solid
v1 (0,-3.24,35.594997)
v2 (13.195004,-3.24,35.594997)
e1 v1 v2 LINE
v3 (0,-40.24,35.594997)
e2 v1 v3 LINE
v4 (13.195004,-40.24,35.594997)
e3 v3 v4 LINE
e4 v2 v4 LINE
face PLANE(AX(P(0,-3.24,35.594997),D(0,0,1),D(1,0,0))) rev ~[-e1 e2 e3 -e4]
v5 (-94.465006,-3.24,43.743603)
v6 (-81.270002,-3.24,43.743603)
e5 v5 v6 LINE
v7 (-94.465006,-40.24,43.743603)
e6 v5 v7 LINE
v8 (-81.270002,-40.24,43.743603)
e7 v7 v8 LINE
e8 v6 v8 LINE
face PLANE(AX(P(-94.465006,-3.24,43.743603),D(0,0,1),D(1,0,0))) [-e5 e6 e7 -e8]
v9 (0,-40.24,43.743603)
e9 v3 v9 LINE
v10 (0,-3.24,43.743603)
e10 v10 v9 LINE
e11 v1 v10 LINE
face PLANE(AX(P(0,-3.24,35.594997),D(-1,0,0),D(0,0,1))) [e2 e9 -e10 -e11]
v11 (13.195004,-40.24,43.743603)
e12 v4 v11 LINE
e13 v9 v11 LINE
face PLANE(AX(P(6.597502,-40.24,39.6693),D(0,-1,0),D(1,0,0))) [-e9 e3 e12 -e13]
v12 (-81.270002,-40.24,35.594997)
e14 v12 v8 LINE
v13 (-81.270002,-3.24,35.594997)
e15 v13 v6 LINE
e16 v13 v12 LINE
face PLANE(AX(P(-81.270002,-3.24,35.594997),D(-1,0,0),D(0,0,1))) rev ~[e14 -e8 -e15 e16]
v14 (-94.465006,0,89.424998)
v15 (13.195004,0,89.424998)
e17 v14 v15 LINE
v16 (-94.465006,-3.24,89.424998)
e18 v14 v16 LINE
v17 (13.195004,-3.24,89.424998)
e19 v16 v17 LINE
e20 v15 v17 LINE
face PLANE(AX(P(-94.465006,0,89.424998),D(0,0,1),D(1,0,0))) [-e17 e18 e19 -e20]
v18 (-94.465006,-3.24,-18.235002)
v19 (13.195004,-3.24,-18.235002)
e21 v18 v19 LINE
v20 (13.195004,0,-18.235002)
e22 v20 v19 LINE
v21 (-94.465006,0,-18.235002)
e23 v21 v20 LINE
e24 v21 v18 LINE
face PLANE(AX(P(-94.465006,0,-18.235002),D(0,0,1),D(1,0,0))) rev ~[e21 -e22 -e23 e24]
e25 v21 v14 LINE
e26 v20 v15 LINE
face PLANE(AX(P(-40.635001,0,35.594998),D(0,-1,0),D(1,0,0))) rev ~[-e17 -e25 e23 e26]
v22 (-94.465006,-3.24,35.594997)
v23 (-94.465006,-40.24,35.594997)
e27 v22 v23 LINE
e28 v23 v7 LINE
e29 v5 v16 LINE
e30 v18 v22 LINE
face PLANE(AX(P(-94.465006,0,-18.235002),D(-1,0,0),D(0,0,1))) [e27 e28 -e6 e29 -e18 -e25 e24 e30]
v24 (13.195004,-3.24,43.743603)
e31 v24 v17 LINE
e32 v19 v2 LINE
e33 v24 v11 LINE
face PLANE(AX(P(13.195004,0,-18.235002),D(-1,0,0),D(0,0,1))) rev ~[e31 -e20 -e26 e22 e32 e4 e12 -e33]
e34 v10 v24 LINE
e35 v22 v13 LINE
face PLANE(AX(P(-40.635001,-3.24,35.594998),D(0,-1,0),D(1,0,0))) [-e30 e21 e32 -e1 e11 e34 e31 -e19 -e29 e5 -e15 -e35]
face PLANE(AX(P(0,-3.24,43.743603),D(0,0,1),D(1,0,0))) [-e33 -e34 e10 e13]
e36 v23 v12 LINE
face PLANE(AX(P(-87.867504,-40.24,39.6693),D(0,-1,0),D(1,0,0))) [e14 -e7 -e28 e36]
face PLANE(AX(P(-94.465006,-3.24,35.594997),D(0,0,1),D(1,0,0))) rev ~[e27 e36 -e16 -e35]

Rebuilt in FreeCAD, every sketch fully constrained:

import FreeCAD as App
import Part
import Sketcher

V = App.Vector
Q = App.Units.Quantity

doc = App.newDocument("Part")
params = doc.addObject("Spreadsheet::Sheet", "Params")
for row, (alias, value) in enumerate([
    ("sketch1_height", "107.66 mm"),
    ("pad1_length", "3.24 mm"),
    ("pad2_length", "37 mm"),
], start=1):
    params.set(f"A{row}", alias)
    params.set(f"B{row}", "=" + value)
    params.setAlias(f"B{row}", alias)

body = doc.addObject("PartDesign::Body", "Body")

sketch1 = doc.addObject("Sketcher::SketchObject", "Sketch")
body.addObject(sketch1)
sketch1.AttachmentSupport = (doc.XZ_Plane, [""])
sketch1.MapMode = "FlatFace"
sketch1.addGeometry([
    Part.LineSegment(V(-94, 89, 0), V(-94, -18, 0)),
    Part.LineSegment(V(-94, -18, 0), V(13, -18, 0)),
    Part.LineSegment(V(13, -18, 0), V(13, 89, 0)),
    Part.LineSegment(V(13, 89, 0), V(-94, 89, 0)),
], False)
sketch1.addConstraint([
    Sketcher.Constraint("Coincident", 0, 2, 1, 1),
    Sketcher.Constraint("Coincident", 1, 2, 2, 1),
    Sketcher.Constraint("Coincident", 2, 2, 3, 1),
    Sketcher.Constraint("Coincident", 3, 2, 0, 1),
    Sketcher.Constraint("Vertical", 0),
    Sketcher.Constraint("Horizontal", 1),
    Sketcher.Constraint("Vertical", 2),
    Sketcher.Constraint("Horizontal", 3),
    Sketcher.Constraint("DistanceY", 0, 2, 0, 1, Q("107.66 mm")),
    Sketcher.Constraint("DistanceY", -1, 1, 2, 2, Q("89.424998 mm")),
    Sketcher.Constraint("DistanceX", 1, 1, 1, 2, Q("107.66001 mm")),
    Sketcher.Constraint("DistanceX", 0, 2, -1, 1, Q("94.465006 mm")),
])
sketch1.setExpression("Constraints[8]", "Params.sketch1_height")
pad1 = doc.addObject("PartDesign::Pad", "Pad")
body.addObject(pad1)
pad1.Profile = sketch1
pad1.setExpression("Length", "Params.pad1_length")

sketch2 = doc.addObject("Sketcher::SketchObject", "Sketch001")
body.addObject(sketch2)
sketch2.AttachmentSupport = (doc.XZ_Plane, [""])
sketch2.MapMode = "FlatFace"
sketch2.AttachmentOffset = App.Placement(V(0, 0, 3.24), App.Rotation())
sketch2.addGeometry([
    Part.LineSegment(V(-94, 44, 0), V(-94, 36, 0)),
    Part.LineSegment(V(-94, 36, 0), V(-81, 36, 0)),
    Part.LineSegment(V(-81, 36, 0), V(-81, 44, 0)),
    Part.LineSegment(V(-81, 44, 0), V(-94, 44, 0)),
    Part.LineSegment(V(0, 44, 0), V(0, 36, 0)),
    Part.LineSegment(V(0, 36, 0), V(13, 36, 0)),
    Part.LineSegment(V(13, 36, 0), V(13, 44, 0)),
    Part.LineSegment(V(13, 44, 0), V(0, 44, 0)),
], False)
sketch2.addConstraint([
    Sketcher.Constraint("Coincident", 0, 2, 1, 1),
    Sketcher.Constraint("Coincident", 1, 2, 2, 1),
    Sketcher.Constraint("Coincident", 2, 2, 3, 1),
    Sketcher.Constraint("Coincident", 3, 2, 0, 1),
    Sketcher.Constraint("Coincident", 4, 2, 5, 1),
    Sketcher.Constraint("Coincident", 5, 2, 6, 1),
    Sketcher.Constraint("Coincident", 6, 2, 7, 1),
    Sketcher.Constraint("Coincident", 7, 2, 4, 1),
    Sketcher.Constraint("Vertical", 0),
    Sketcher.Constraint("Horizontal", 1),
    Sketcher.Constraint("Vertical", 2),
    Sketcher.Constraint("Horizontal", 3),
    Sketcher.Constraint("Vertical", 4),
    Sketcher.Constraint("Horizontal", 5),
    Sketcher.Constraint("Vertical", 6),
    Sketcher.Constraint("Horizontal", 7),
    Sketcher.Constraint("PointOnObject", 4, 2, -2),
    Sketcher.Constraint("Horizontal", 1, 2, 4, 2),
    Sketcher.Constraint("Horizontal", 3, 2, 6, 2),
    Sketcher.Constraint("Equal", 3, 5),
    Sketcher.Constraint("DistanceX", 1, 1, 1, 2, Q("13.195004 mm")),
    Sketcher.Constraint("DistanceY", 0, 2, 0, 1, Q("8.148605 mm")),
    Sketcher.Constraint("DistanceX", 0, 2, 5, 2, Q("107.66001 mm")),
    Sketcher.Constraint("DistanceY", -1, 1, 0, 2, Q("35.594997 mm")),
])
pad2 = doc.addObject("PartDesign::Pad", "Pad001")
body.addObject(pad2)
pad2.Profile = sketch2
pad2.setExpression("Length", "Params.pad2_length")

doc.recompute()
